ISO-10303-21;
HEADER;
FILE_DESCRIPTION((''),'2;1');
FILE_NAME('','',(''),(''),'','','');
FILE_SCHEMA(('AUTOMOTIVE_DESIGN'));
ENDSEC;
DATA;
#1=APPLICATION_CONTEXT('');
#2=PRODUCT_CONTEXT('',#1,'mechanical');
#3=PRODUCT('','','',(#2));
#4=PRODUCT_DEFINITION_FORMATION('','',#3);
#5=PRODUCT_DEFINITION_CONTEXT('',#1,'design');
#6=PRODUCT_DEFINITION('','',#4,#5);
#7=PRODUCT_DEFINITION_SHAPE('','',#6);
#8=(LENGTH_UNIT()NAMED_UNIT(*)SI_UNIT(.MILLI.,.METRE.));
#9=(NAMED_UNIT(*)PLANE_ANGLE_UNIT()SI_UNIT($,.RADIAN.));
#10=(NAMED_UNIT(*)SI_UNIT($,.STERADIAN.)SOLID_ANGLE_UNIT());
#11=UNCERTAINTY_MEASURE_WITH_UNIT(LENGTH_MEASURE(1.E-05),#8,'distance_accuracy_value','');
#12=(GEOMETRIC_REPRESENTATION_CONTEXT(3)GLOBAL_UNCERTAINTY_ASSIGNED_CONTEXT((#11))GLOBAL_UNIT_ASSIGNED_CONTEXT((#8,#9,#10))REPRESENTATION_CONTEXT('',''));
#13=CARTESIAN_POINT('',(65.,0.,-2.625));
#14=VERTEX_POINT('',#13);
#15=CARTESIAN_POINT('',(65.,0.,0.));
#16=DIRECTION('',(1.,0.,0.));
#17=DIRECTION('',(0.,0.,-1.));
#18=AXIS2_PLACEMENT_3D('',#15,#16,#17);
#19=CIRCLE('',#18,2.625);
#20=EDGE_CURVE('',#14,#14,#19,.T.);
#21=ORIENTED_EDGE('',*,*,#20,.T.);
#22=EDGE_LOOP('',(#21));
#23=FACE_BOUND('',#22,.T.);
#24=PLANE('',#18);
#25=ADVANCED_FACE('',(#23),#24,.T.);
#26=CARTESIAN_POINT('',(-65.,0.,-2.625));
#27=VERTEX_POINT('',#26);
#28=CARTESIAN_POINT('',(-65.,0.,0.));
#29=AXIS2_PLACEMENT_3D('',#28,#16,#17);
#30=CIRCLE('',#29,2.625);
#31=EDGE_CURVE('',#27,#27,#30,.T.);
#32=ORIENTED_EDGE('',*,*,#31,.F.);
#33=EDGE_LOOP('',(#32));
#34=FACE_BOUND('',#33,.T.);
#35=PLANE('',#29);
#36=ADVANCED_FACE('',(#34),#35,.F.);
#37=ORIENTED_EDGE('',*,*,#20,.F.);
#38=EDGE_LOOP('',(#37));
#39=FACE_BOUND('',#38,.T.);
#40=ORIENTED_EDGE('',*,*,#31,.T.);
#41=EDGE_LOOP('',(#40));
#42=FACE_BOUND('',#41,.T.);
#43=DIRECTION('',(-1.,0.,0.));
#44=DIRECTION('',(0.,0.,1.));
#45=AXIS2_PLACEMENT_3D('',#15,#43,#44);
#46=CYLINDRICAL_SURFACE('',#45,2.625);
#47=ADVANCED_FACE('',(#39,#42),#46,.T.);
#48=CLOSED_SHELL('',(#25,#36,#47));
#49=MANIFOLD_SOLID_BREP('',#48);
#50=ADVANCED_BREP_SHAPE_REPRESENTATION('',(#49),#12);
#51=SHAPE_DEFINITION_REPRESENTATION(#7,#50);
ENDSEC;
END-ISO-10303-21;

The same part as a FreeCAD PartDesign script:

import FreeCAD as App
import Part
import Sketcher
Q = App.Units.Quantity

doc = App.newDocument("Part")
body = doc.addObject("PartDesign::Body", "Body")

# Sketch on YZ plane
sketch1 = body.newObject("Sketcher::SketchObject", "Sketch")
sketch1.AttachmentSupport = (doc.getObject("YZ_Plane"), [""])
sketch1.MapMode = "FlatFace"
sketch1.addGeometry(Part.Circle(App.Vector(0, 0, 0), App.Vector(0, 0, 1), 2.6), False)
sketch1.addConstraint(Sketcher.Constraint("Coincident", 0, 3, -1, 1))
sketch1.addConstraint(Sketcher.Constraint("Diameter", 0, Q("5.25 mm")))
pad1 = body.newObject("PartDesign::Pad", "Pad")
pad1.Profile = sketch1
pad1.Length = 130
pad1.Midplane = True

doc.recompute()
